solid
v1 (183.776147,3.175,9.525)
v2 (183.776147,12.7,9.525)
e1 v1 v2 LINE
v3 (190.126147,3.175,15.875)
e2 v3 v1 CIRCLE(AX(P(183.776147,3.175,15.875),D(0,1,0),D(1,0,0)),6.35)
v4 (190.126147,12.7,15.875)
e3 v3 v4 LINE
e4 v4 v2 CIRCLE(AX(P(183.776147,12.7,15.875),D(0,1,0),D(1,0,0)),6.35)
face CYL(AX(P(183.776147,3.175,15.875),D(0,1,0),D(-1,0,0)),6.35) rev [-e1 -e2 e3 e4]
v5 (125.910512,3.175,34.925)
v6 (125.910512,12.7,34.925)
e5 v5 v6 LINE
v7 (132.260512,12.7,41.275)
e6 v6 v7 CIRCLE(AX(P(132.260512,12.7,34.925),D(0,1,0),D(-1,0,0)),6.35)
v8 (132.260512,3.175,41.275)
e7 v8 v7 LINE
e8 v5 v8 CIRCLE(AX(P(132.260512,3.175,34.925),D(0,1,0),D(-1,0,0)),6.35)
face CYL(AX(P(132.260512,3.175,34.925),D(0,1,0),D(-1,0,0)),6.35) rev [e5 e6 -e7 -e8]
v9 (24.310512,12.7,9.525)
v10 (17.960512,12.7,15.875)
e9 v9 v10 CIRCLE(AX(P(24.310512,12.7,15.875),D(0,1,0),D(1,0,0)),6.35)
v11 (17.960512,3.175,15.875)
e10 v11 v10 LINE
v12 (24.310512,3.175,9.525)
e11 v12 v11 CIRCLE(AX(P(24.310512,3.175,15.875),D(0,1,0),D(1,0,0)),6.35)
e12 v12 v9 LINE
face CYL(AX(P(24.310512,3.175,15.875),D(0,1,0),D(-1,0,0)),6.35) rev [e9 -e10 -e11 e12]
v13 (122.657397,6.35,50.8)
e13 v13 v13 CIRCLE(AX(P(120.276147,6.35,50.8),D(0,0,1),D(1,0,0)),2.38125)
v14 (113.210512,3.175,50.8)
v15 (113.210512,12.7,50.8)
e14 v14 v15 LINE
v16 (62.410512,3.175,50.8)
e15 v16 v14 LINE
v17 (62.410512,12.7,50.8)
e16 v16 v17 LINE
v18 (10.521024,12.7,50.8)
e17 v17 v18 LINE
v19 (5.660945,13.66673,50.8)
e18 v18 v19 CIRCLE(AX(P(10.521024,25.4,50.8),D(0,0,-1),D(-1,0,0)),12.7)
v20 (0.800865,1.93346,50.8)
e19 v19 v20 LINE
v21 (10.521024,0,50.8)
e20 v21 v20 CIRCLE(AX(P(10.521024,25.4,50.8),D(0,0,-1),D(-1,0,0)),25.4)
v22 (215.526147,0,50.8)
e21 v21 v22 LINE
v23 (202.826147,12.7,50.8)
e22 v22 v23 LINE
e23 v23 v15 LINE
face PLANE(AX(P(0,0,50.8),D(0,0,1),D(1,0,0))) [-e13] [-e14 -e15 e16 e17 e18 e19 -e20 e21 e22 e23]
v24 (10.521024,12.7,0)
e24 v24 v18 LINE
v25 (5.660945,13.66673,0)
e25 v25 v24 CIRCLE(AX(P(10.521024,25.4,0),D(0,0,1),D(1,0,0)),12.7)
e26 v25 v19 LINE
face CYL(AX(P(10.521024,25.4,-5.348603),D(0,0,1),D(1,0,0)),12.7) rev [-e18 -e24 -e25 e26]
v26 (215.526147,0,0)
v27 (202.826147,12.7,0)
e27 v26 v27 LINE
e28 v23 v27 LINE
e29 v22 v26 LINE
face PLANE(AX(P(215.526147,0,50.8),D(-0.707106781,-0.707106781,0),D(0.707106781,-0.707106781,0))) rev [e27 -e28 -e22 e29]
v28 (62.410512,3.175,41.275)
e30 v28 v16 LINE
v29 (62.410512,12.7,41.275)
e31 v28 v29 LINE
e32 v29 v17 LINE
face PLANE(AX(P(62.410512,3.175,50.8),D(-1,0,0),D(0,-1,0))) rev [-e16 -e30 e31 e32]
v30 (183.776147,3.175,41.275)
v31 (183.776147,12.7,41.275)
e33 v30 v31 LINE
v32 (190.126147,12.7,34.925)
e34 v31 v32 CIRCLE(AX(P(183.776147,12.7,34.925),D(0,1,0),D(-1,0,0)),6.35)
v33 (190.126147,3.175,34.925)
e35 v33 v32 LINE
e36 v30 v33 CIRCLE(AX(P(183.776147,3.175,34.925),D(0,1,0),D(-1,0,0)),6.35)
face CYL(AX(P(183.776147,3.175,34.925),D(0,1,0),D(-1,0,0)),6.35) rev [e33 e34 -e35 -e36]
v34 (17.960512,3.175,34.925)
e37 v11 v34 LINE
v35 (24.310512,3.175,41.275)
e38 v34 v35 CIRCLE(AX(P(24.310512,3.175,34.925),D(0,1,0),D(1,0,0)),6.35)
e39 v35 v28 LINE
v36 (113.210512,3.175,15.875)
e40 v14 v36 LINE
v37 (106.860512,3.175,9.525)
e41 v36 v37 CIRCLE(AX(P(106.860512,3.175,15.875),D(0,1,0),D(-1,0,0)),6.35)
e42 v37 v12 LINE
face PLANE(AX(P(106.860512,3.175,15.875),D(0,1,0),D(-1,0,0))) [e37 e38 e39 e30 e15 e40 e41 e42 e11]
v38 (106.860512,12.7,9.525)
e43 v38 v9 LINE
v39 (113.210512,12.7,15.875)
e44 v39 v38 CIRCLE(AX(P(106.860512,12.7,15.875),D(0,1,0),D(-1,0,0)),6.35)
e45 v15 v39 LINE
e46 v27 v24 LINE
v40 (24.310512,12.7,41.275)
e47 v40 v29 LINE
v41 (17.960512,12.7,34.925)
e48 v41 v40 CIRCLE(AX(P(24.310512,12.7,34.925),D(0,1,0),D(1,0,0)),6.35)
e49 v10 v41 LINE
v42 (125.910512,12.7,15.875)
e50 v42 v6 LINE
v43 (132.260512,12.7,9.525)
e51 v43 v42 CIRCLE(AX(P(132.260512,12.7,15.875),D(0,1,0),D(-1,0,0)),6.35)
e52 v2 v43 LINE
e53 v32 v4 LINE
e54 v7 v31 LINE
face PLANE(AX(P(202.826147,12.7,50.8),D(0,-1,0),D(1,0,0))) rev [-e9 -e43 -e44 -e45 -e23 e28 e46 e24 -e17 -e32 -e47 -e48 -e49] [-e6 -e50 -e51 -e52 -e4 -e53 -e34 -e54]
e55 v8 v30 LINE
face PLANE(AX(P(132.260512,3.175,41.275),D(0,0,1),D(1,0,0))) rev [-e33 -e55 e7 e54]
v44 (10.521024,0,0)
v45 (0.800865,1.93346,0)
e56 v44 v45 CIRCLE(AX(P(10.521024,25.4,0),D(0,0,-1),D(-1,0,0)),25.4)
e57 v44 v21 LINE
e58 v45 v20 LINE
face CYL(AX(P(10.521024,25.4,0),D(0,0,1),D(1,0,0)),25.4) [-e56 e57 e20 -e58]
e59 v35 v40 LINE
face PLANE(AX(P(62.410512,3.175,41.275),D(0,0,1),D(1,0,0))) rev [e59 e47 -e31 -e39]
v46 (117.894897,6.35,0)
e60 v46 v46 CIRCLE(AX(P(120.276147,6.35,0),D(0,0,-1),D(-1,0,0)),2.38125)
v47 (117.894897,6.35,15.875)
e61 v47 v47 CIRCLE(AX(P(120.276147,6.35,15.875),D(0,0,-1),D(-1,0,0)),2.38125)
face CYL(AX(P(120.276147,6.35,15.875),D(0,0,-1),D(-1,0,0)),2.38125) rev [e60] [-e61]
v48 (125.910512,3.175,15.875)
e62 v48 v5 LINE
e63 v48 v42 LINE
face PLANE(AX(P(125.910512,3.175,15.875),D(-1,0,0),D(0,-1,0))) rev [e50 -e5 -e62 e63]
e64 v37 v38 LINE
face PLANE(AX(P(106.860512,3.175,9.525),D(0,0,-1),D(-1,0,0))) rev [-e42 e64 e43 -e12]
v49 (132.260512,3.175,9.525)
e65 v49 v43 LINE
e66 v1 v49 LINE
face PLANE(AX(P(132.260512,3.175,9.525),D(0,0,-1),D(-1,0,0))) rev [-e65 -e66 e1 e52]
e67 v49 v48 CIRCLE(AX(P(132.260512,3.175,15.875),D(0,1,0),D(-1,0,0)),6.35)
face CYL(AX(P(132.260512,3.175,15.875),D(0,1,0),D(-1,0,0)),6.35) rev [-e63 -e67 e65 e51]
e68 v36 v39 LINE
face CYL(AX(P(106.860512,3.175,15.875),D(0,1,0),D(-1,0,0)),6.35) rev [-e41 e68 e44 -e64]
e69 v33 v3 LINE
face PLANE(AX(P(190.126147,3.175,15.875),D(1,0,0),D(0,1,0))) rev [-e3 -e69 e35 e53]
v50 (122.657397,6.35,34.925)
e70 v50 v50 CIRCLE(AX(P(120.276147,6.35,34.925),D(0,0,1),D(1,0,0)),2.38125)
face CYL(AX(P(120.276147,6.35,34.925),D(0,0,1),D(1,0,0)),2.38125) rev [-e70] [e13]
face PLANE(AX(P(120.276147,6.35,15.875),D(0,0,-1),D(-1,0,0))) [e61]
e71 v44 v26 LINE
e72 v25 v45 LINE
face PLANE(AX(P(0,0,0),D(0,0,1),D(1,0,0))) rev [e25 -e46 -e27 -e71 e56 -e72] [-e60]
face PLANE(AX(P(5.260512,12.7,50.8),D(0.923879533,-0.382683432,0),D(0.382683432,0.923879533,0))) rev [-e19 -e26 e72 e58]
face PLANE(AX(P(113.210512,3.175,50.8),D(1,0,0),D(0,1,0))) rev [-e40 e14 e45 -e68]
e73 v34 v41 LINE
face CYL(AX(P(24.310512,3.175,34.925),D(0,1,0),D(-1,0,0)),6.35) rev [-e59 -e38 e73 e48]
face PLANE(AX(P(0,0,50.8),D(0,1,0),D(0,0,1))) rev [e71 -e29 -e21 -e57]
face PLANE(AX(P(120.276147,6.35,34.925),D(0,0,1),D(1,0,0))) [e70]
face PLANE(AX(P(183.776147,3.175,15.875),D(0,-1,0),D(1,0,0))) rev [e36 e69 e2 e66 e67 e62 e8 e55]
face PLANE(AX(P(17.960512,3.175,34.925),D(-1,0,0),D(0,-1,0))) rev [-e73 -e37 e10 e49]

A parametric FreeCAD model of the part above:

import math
import FreeCAD as App
import Part
import Sketcher
Q = App.Units.Quantity


def add_polygon(sketch, points):
    """Adds a closed chain of lines whose ends are joined by coincident constraints."""
    first, n = sketch.GeometryCount, len(points)
    for a, b in zip(points, points[1:] + points[:1]):
        sketch.addGeometry(Part.LineSegment(App.Vector(*a, 0), App.Vector(*b, 0)), False)
    for i in range(n):
        sketch.addConstraint(Sketcher.Constraint("Coincident", first + i, 2, first + (i + 1) % n, 1))

doc = App.newDocument("Part")
body = doc.addObject("PartDesign::Body", "Body")

# Sketch on XY plane
sketch1 = doc.addObject("Sketcher::SketchObject", "Sketch")
body.addObject(sketch1)
sketch1.AttachmentSupport = (doc.XY_Plane, [""])
sketch1.MapMode = "FlatFace"
add_polygon(sketch1, [(0, 0), (216, 0), (203, 13), (5, 13)])  # lines 0-3
sketch1.addConstraint([
    Sketcher.Constraint("Horizontal", 0),
    Sketcher.Constraint("Horizontal", 2),
    Sketcher.Constraint("Coincident", 3, 2, -1, 1),
    Sketcher.Constraint("Angle", 1, Q("135 deg")),
    Sketcher.Constraint("DistanceY", -1, 1, 1, 2, Q("0.5 in")),
    Sketcher.Constraint("Angle", 3, Q("-112.5 deg")),
    Sketcher.Constraint("DistanceX", 0, 1, 0, 2, Q("215.526147 mm")),
])
pad1 = doc.addObject("PartDesign::Pad", "Pad")
body.addObject(pad1)
pad1.Profile = sketch1
pad1.Length = Q("2 in")

# Sketch on XZ plane
sketch2 = doc.addObject("Sketcher::SketchObject", "Sketch001")
body.addObject(sketch2)
sketch2.AttachmentSupport = (doc.XZ_Plane, [""])
sketch2.MapMode = "FlatFace"
sketch2.AttachmentOffset = App.Placement(App.Vector(0, 0, -0.5 * 25.4), App.Rotation())
sketch2.addGeometry([
    Part.LineSegment(App.Vector(62, 51, 0), App.Vector(113, 51, 0)),  # 0
    Part.LineSegment(App.Vector(113, 51, 0), App.Vector(113, 16, 0)),  # 1
    Part.ArcOfCircle(Part.Circle(App.Vector(107, 16, 0), App.Vector(0, 0, 1), 6), math.radians(-90), math.radians(0)),  # 2
    Part.LineSegment(App.Vector(107, 10, 0), App.Vector(24, 10, 0)),  # 3
    Part.ArcOfCircle(Part.Circle(App.Vector(24, 16, 0), App.Vector(0, 0, 1), 6), math.radians(180), math.radians(270)),  # 4
    Part.LineSegment(App.Vector(18, 16, 0), App.Vector(18, 35, 0)),  # 5
    Part.ArcOfCircle(Part.Circle(App.Vector(24, 35, 0), App.Vector(0, 0, 1), 6), math.radians(90), math.radians(180)),  # 6
    Part.LineSegment(App.Vector(24, 41, 0), App.Vector(62, 41, 0)),  # 7
    Part.LineSegment(App.Vector(62, 41, 0), App.Vector(62, 51, 0)),  # 8
    Part.LineSegment(App.Vector(184, 10, 0), App.Vector(132, 10, 0)),  # 9
    Part.ArcOfCircle(Part.Circle(App.Vector(132, 16, 0), App.Vector(0, 0, 1), 6), math.radians(180), math.radians(270)),  # 10
    Part.LineSegment(App.Vector(126, 16, 0), App.Vector(126, 35, 0)),  # 11
    Part.ArcOfCircle(Part.Circle(App.Vector(132, 35, 0), App.Vector(0, 0, 1), 6), math.radians(90), math.radians(180)),  # 12
    Part.LineSegment(App.Vector(132, 41, 0), App.Vector(184, 41, 0)),  # 13
    Part.ArcOfCircle(Part.Circle(App.Vector(184, 35, 0), App.Vector(0, 0, 1), 6), math.radians(0), math.radians(90)),  # 14
    Part.LineSegment(App.Vector(190, 35, 0), App.Vector(190, 16, 0)),  # 15
    Part.ArcOfCircle(Part.Circle(App.Vector(184, 16, 0), App.Vector(0, 0, 1), 6), math.radians(-90), math.radians(0)),  # 16
], False)
sketch2.addConstraint([
    Sketcher.Constraint("Coincident", 0, 2, 1, 1),
    Sketcher.Constraint("Tangent", 1, 2, 2, 2),
    Sketcher.Constraint("Tangent", 2, 1, 3, 1),
    Sketcher.Constraint("Tangent", 3, 2, 4, 2),
    Sketcher.Constraint("Tangent", 4, 1, 5, 1),
    Sketcher.Constraint("Tangent", 5, 2, 6, 2),
    Sketcher.Constraint("Tangent", 6, 1, 7, 1),
    Sketcher.Constraint("Coincident", 7, 2, 8, 1),
    Sketcher.Constraint("Coincident", 8, 2, 0, 1),
    Sketcher.Constraint("Tangent", 9, 2, 10, 2),
    Sketcher.Constraint("Tangent", 10, 1, 11, 1),
    Sketcher.Constraint("Tangent", 11, 2, 12, 2),
    Sketcher.Constraint("Tangent", 12, 1, 13, 1),
    Sketcher.Constraint("Tangent", 13, 2, 14, 2),
    Sketcher.Constraint("Tangent", 14, 1, 15, 1),
    Sketcher.Constraint("Tangent", 15, 2, 16, 2),
    Sketcher.Constraint("Tangent", 16, 1, 9, 1),
    Sketcher.Constraint("Horizontal", 0),
    Sketcher.Constraint("Vertical", 1),
    Sketcher.Constraint("Horizontal", 3),
    Sketcher.Constraint("Vertical", 5),
    Sketcher.Constraint("Horizontal", 7),
    Sketcher.Constraint("Vertical", 8),
    Sketcher.Constraint("Horizontal", 9),
    Sketcher.Constraint("Vertical", 11),
    Sketcher.Constraint("Horizontal", 13),
    Sketcher.Constraint("Vertical", 15),
    Sketcher.Constraint("Equal", 2, 4),
    Sketcher.Constraint("Equal", 4, 6),
    Sketcher.Constraint("Equal", 6, 10),
    Sketcher.Constraint("Equal", 10, 12),
    Sketcher.Constraint("Equal", 12, 14),
    Sketcher.Constraint("Equal", 14, 16),
    Sketcher.Constraint("Horizontal", 4, 3, 10, 3),
    Sketcher.Constraint("Horizontal", 6, 3, 12, 3),
    Sketcher.Constraint("DistanceX", 0, 1, 0, 2, Q("2 in")),
    Sketcher.Constraint("Radius", 2, Q("0.25 in")),
    Sketcher.Constraint("DistanceX", 7, 1, 7, 2, Q("1.5 in")),
    Sketcher.Constraint("DistanceY", -1, 1, 0, 2, Q("2 in")),
    Sketcher.Constraint("DistanceX", 2, 3, 10, 3, Q("1 in")),
    Sketcher.Constraint("DistanceY", 2, 1, 12, 3, Q("1 in")),
    Sketcher.Constraint("DistanceY", 1, 2, 1, 1, Q("1.375 in")),
    Sketcher.Constraint("DistanceX", 9, 2, 9, 1, Q("51.515635 mm")),
    Sketcher.Constraint("DistanceX", -1, 1, 2, 3, Q("106.860512 mm")),
])
pocket1 = doc.addObject("PartDesign::Pocket", "Pocket")
body.addObject(pocket1)
pocket1.Profile = sketch2
pocket1.Length = Q("0.375 in")
pocket1.Reversed = True

# Sketch on XY plane
sketch3 = doc.addObject("Sketcher::SketchObject", "Sketch002")
body.addObject(sketch3)
sketch3.AttachmentSupport = (doc.XY_Plane, [""])
sketch3.MapMode = "FlatFace"
sketch3.addGeometry(Part.Circle(App.Vector(120.3, 6.3, 0), App.Vector(0, 0, 1), 2.4), False)
sketch3.addConstraint([
    Sketcher.Constraint("Diameter", 0, Q("0.1875 in")),
    Sketcher.Constraint("DistanceY", -1, 1, 0, 3, Q("0.25 in")),
    Sketcher.Constraint("DistanceX", -1, 1, 0, 3, Q("120.276147 mm")),
])
pocket2 = doc.addObject("PartDesign::Pocket", "Pocket001")
body.addObject(pocket2)
pocket2.Profile = sketch3
pocket2.Length = Q("0.625 in")
pocket2.Reversed = True

# Sketch on XY plane
sketch4 = doc.addObject("Sketcher::SketchObject", "Sketch003")
body.addObject(sketch4)
sketch4.AttachmentSupport = (doc.XY_Plane, [""])
sketch4.MapMode = "FlatFace"
sketch4.AttachmentOffset = App.Placement(App.Vector(0, 0, 1.375 * 25.4), App.Rotation())
sketch4.addGeometry(Part.Circle(App.Vector(120.3, 6.3, 0), App.Vector(0, 0, 1), 2.4), False)
sketch4.addConstraint([
    Sketcher.Constraint("Diameter", 0, Q("0.1875 in")),
    Sketcher.Constraint("DistanceY", -1, 1, 0, 3, Q("0.25 in")),
    Sketcher.Constraint("DistanceX", -1, 1, 0, 3, Q("120.276147 mm")),
])
pocket3 = doc.addObject("PartDesign::Pocket", "Pocket002")
body.addObject(pocket3)
pocket3.Profile = sketch4
pocket3.Length = Q("0.625 in")
pocket3.Reversed = True

# Sketch on XY plane
sketch5 = doc.addObject("Sketcher::SketchObject", "Sketch004")
body.addObject(sketch5)
sketch5.AttachmentSupport = (doc.XY_Plane, [""])
sketch5.MapMode = "FlatFace"
sketch5.AttachmentOffset = App.Placement(App.Vector(0, 0, 2 * 25.4), App.Rotation())
sketch5.addGeometry([
    Part.LineSegment(App.Vector(0.8, 1.9, 0), App.Vector(0, 0, 0)),
    Part.LineSegment(App.Vector(0, 0, 0), App.Vector(10.5, 0, 0)),
    Part.ArcOfCircle(Part.Circle(App.Vector(10.5, 25.4, 0), App.Vector(0, 0, 1), 25.4), math.radians(-112), math.radians(-90)),
], False)
sketch5.addConstraint([
    Sketcher.Constraint("Coincident", 0, 2, 1, 1),
    Sketcher.Constraint("Tangent", 1, 2, 2, 2),
    Sketcher.Constraint("Coincident", 2, 1, 0, 1),
    Sketcher.Constraint("Horizontal", 1),
    Sketcher.Constraint("Coincident", 0, 2, -1, 1),
    Sketcher.Constraint("Radius", 2, Q("1 in")),
    Sketcher.Constraint("Angle", 0, Q("-112.5 deg")),
    Sketcher.Constraint("Distance", 0, Q("2.092762 mm")),
])
pocket4 = doc.addObject("PartDesign::Pocket", "Pocket003")
body.addObject(pocket4)
pocket4.Profile = sketch5
pocket4.Type = "ThroughAll"

# Sketch on XY plane
sketch6 = doc.addObject("Sketcher::SketchObject", "Sketch005")
body.addObject(sketch6)
sketch6.AttachmentSupport = (doc.XY_Plane, [""])
sketch6.MapMode = "FlatFace"
sketch6.AttachmentOffset = App.Placement(App.Vector(0, 0, 2 * 25.4), App.Rotation())
sketch6.addGeometry([
    Part.LineSegment(App.Vector(5.7, 13.7, 0), App.Vector(5.3, 12.7, 0)),
    Part.LineSegment(App.Vector(5.3, 12.7, 0), App.Vector(10.5, 12.7, 0)),
    Part.ArcOfCircle(Part.Circle(App.Vector(10.5, 25.4, 0), App.Vector(0, 0, 1), 12.7), math.radians(-112), math.radians(-90)),
], False)
sketch6.addConstraint([
    Sketcher.Constraint("Coincident", 0, 2, 1, 1),
    Sketcher.Constraint("Tangent", 1, 2, 2, 2),
    Sketcher.Constraint("Coincident", 2, 1, 0, 1),
    Sketcher.Constraint("Horizontal", 1),
    Sketcher.Constraint("Radius", 2, Q("0.5 in")),
    Sketcher.Constraint("DistanceY", -1, 1, 2, 3, Q("1 in")),
    Sketcher.Constraint("Angle", 0, Q("-112.5 deg")),
    Sketcher.Constraint("Distance", 0, Q("1.046381 mm")),
    Sketcher.Constraint("DistanceX", -1, 1, 2, 3, Q("10.521024 mm")),
])
pad2 = doc.addObject("PartDesign::Pad", "Pad001")
body.addObject(pad2)
pad2.Profile = sketch6
pad2.Length = Q("2 in")
pad2.Reversed = True

doc.recompute()
